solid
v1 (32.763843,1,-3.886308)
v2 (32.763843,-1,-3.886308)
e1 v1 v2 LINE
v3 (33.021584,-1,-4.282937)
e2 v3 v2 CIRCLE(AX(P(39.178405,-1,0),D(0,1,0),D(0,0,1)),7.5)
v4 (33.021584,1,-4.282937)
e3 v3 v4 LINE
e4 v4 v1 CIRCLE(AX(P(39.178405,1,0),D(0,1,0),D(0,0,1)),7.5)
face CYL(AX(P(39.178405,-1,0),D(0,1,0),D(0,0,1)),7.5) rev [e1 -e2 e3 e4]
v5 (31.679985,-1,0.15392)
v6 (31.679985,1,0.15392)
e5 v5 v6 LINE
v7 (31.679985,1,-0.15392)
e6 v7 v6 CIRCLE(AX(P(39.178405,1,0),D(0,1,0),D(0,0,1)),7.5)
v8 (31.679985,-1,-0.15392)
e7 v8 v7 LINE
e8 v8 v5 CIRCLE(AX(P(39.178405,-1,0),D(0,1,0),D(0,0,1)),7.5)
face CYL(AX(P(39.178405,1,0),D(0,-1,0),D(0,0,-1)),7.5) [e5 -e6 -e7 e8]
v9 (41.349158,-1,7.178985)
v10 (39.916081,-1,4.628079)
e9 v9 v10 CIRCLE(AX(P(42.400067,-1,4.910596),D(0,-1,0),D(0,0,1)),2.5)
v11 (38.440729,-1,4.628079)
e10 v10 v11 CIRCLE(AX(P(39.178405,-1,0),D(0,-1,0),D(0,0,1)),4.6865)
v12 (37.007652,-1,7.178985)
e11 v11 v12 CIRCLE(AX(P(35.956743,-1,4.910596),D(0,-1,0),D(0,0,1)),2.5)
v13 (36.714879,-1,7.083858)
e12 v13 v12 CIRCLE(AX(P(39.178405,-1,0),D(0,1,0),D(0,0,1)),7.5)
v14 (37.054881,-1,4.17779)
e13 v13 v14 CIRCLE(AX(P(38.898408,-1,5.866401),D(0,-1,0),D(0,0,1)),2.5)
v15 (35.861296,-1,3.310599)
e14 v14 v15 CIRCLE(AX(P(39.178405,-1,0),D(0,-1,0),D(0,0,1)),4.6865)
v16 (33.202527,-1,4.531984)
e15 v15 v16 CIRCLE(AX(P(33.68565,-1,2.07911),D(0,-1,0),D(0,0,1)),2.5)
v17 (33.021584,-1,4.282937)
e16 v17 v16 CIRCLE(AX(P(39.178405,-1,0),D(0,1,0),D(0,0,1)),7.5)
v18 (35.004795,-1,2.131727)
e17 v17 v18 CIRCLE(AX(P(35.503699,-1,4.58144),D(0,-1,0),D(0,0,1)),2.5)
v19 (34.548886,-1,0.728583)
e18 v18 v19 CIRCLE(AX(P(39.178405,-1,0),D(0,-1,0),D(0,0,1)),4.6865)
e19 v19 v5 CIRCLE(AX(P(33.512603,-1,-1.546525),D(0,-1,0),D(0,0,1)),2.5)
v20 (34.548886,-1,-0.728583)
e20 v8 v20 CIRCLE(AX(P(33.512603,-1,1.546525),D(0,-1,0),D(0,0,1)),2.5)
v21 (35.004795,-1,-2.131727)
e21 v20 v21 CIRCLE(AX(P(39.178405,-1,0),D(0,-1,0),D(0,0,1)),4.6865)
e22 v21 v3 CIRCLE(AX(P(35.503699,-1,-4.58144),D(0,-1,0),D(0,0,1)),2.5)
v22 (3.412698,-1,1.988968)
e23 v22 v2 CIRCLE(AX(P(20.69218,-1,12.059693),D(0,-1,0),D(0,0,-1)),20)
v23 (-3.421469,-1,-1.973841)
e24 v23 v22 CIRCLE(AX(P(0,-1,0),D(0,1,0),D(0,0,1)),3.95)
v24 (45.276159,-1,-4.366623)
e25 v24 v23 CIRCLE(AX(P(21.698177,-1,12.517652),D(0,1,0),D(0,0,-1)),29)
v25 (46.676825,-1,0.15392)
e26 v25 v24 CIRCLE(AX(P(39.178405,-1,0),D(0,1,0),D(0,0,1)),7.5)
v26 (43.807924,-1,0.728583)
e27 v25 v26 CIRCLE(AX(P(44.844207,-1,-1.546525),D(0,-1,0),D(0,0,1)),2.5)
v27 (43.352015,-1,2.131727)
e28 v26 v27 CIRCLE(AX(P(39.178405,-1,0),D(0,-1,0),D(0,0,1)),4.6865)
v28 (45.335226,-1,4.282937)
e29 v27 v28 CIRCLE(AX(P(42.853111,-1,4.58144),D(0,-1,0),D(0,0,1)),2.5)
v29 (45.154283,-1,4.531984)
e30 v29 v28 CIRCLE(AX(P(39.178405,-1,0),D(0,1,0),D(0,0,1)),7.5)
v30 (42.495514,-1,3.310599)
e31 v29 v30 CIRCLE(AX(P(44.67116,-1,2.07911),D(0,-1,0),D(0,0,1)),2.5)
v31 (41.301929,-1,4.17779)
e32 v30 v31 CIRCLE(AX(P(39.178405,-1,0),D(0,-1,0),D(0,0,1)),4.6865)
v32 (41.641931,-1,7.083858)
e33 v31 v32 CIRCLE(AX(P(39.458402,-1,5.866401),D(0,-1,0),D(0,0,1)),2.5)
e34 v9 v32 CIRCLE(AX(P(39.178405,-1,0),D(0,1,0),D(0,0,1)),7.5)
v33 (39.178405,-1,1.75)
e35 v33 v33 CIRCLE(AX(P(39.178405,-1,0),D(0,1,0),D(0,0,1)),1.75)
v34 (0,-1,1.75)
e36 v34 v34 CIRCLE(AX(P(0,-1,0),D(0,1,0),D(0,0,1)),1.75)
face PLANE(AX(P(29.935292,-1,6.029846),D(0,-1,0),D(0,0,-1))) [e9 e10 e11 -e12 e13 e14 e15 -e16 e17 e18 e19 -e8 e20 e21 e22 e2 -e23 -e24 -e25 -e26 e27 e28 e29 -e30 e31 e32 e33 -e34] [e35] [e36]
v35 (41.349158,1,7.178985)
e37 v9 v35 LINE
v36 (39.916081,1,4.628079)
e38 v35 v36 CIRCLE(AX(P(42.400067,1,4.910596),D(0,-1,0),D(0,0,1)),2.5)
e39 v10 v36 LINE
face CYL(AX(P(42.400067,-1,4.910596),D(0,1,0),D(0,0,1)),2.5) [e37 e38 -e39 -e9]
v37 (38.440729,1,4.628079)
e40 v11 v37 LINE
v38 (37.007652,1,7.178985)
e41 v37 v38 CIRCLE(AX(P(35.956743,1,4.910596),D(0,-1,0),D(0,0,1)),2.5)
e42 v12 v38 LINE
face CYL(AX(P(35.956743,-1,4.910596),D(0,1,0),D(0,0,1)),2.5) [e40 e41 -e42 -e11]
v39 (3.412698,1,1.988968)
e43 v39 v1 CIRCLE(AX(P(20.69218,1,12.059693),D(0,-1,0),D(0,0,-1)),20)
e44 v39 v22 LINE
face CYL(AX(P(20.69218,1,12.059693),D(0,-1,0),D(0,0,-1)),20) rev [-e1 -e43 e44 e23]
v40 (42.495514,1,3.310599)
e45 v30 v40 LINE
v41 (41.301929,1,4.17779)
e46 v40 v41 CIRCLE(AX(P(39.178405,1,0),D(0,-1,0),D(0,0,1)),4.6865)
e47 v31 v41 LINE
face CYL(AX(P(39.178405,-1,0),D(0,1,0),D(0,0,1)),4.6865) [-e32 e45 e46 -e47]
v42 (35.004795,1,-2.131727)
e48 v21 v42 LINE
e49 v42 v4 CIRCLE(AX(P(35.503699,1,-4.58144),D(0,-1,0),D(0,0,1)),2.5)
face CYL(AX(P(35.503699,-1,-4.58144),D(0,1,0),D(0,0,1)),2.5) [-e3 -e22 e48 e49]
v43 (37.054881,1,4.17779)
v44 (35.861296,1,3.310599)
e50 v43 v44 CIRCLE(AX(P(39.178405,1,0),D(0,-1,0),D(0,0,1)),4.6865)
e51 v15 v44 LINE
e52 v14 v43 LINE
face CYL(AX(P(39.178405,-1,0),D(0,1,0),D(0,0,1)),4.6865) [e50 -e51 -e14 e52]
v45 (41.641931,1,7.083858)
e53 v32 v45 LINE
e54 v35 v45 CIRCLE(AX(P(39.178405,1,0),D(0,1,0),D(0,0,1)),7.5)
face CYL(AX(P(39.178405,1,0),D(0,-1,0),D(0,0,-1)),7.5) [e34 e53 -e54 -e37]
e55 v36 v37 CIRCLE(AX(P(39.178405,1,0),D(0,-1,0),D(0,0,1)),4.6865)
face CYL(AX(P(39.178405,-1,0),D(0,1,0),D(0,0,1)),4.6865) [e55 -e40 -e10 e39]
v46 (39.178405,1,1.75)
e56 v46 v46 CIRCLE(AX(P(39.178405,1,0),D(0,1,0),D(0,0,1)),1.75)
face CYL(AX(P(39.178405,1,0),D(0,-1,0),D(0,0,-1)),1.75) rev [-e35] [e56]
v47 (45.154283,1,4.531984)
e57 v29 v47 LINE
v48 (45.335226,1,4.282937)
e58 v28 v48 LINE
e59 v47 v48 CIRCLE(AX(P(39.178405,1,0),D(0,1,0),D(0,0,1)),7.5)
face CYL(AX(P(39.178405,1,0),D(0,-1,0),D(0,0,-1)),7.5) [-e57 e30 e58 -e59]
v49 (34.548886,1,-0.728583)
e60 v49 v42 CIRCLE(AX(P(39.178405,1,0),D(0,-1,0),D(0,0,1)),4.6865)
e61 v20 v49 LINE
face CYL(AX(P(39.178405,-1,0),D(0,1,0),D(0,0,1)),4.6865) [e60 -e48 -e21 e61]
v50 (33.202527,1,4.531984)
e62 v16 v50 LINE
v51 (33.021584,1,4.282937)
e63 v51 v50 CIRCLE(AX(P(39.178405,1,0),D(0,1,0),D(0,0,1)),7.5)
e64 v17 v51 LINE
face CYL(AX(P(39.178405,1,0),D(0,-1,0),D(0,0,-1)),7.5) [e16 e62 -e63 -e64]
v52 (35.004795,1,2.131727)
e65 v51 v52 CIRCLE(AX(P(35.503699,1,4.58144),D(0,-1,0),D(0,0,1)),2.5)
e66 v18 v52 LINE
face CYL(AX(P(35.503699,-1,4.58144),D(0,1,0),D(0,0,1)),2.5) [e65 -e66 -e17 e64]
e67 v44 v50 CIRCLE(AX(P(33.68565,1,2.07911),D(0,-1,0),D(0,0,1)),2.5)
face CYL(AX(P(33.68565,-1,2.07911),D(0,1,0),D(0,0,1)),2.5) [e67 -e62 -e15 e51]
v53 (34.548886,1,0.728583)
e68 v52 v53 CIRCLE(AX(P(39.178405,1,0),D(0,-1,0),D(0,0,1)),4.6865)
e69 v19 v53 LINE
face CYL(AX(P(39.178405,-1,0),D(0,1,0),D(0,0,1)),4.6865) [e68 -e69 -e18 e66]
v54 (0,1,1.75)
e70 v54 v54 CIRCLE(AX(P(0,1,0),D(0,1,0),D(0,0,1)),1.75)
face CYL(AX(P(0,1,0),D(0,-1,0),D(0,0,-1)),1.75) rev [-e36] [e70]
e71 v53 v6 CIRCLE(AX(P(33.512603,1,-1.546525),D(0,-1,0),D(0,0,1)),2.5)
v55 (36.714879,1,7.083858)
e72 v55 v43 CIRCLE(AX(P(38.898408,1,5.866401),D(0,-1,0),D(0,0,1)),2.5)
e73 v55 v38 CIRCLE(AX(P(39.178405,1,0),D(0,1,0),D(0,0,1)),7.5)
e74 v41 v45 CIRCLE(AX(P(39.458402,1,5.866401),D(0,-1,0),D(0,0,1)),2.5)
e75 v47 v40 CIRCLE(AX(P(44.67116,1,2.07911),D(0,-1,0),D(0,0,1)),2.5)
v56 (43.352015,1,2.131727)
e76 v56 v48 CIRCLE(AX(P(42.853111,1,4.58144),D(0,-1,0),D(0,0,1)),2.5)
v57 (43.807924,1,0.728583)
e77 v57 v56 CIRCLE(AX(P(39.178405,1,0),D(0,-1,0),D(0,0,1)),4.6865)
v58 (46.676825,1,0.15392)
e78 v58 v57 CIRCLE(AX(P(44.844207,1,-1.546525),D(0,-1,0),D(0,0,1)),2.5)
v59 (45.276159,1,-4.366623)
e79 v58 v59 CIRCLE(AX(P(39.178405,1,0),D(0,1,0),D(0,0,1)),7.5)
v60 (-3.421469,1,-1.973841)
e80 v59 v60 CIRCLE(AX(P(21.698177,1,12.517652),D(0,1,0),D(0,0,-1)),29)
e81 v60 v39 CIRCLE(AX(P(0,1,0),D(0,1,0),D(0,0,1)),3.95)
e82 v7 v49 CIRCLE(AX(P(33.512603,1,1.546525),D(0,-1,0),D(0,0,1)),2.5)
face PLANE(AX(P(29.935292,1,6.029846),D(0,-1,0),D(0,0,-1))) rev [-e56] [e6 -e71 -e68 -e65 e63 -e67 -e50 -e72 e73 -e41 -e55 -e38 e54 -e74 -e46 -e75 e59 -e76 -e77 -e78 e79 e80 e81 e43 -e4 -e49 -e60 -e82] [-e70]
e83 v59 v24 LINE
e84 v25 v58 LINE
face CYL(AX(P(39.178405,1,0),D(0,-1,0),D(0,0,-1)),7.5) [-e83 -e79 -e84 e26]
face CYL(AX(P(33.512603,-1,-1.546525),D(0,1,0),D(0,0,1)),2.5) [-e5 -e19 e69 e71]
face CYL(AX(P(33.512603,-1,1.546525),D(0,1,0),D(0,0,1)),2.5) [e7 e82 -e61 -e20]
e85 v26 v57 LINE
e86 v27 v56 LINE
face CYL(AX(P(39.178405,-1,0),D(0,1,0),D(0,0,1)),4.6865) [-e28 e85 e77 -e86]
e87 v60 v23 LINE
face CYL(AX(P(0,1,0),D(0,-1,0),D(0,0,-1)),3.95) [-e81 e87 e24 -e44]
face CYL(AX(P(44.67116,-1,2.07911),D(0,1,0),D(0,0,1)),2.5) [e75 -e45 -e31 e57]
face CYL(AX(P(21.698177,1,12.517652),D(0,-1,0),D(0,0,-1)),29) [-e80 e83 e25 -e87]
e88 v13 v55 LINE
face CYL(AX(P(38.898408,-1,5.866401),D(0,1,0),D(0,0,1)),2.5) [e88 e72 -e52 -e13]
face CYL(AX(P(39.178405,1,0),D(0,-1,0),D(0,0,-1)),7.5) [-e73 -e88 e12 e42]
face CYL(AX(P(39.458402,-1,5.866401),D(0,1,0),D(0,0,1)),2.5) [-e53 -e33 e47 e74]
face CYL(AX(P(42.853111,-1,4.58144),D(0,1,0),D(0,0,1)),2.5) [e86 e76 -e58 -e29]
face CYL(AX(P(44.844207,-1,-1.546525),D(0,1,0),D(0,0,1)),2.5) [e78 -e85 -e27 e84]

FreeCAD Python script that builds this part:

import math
import FreeCAD as App
import Part
import Sketcher

doc = App.newDocument("Part")
body = doc.addObject("PartDesign::Body", "Body")

# Sketch on XZ plane
sketch1 = body.newObject("Sketcher::SketchObject", "Sketch")
sketch1.AttachmentSupport = (doc.getObject("XZ_Plane"), [""])
sketch1.MapMode = "FlatFace"
sketch1.addGeometry([
    Part.ArcOfCircle(Part.Circle(App.Vector(0, 0, 0), App.Vector(0, 0, 1), 4), math.radians(30), math.radians(210)),  # 0
    Part.ArcOfCircle(Part.Circle(App.Vector(20.7, 12.1, 0), App.Vector(0, 0, 1), 20), math.radians(-150), math.radians(-53)),  # 1
    Part.ArcOfCircle(Part.Circle(App.Vector(39.2, 0, 0), App.Vector(0, 0, 1), 7.5), math.radians(-36), math.radians(211)),  # 2
    Part.ArcOfCircle(Part.Circle(App.Vector(21.7, 12.5, 0), App.Vector(0, 0, 1), 29), math.radians(-150), math.radians(-36)),  # 3
    Part.Circle(App.Vector(0, 0, 0), App.Vector(0, 0, 1), 1.8),  # 4
    Part.Circle(App.Vector(39.2, 0, 0), App.Vector(0, 0, 1), 1.8),  # 5
], False)
sketch1.addConstraint([
    Sketcher.Constraint("Tangent", 0, 1, 1, 1),
    Sketcher.Constraint("Coincident", 1, 2, 2, 2),
    Sketcher.Constraint("Tangent", 2, 1, 3, 2),
    Sketcher.Constraint("Tangent", 3, 1, 0, 2),
    Sketcher.Constraint("Coincident", 0, 3, -1, 1),
    Sketcher.Constraint("Coincident", 4, 3, -1, 1),
    Sketcher.Constraint("Coincident", 5, 3, 2, 3),
    Sketcher.Constraint("Equal", 4, 5),
    Sketcher.Constraint("PointOnObject", 2, 3, -1),
    Sketcher.Constraint("Radius", 1, 20.0),
    Sketcher.Constraint("Radius", 3, 29.0),
    Sketcher.Constraint("Diameter", 4, 3.5),
    Sketcher.Constraint("Radius", 2, 7.5),
    Sketcher.Constraint("Radius", 0, 3.95),
    Sketcher.Constraint("DistanceY", 1, 2, 1, 3, 15.946001),
    Sketcher.Constraint("DistanceX", -1, 1, 1, 3, 20.69218),
])
pad1 = body.newObject("PartDesign::Pad", "Pad")
pad1.Profile = sketch1
pad1.Length = 2
pad1.Midplane = True

# Sketch on XZ plane
sketch2 = body.newObject("Sketcher::SketchObject", "Sketch001")
sketch2.AttachmentSupport = (doc.getObject("XZ_Plane"), [""])
sketch2.MapMode = "FlatFace"
sketch2.AttachmentOffset = App.Placement(App.Vector(0, 0, -1), App.Rotation())
sketch2.addGeometry([
    Part.ArcOfCircle(Part.Circle(App.Vector(35.5, -4.6, 0), App.Vector(0, 0, 1), 2.5), math.radians(102), math.radians(173)),  # 0
    Part.ArcOfCircle(Part.Circle(App.Vector(39.2, 0, 0), App.Vector(0, 0, 1), 7.5), math.radians(-179), math.radians(-145)),  # 1
    Part.ArcOfCircle(Part.Circle(App.Vector(33.5, 1.5, 0), App.Vector(0, 0, 1), 2.5), math.radians(-137), math.radians(-66)),  # 2
    Part.ArcOfCircle(Part.Circle(App.Vector(39.2, 0, 0), App.Vector(0, 0, 1), 4.7), math.radians(-171.06), math.radians(-152.94)),  # 3
    Part.ArcOfCircle(Part.Circle(App.Vector(33.5, -1.5, 0), App.Vector(0, 0, 1), 2.5), math.radians(66), math.radians(137)),  # 4
    Part.ArcOfCircle(Part.Circle(App.Vector(39.2, 0, 0), App.Vector(0, 0, 1), 7.5), math.radians(145), math.radians(179)),  # 5
    Part.ArcOfCircle(Part.Circle(App.Vector(35.5, 4.6, 0), App.Vector(0, 0, 1), 2.5), math.radians(-173), math.radians(-102)),  # 6
    Part.ArcOfCircle(Part.Circle(App.Vector(39.2, 0, 0), App.Vector(0, 0, 1), 4.7), math.radians(152.94), math.radians(171.06)),  # 7
    Part.ArcOfCircle(Part.Circle(App.Vector(33.7, 2.1, 0), App.Vector(0, 0, 1), 2.5), math.radians(30), math.radians(101)),  # 8
    Part.ArcOfCircle(Part.Circle(App.Vector(39.2, 0, 0), App.Vector(0, 0, 1), 7.5), math.radians(109), math.radians(143)),  # 9
    Part.ArcOfCircle(Part.Circle(App.Vector(38.9, 5.9, 0), App.Vector(0, 0, 1), 2.5), math.radians(151), math.radians(222)),  # 10
    Part.ArcOfCircle(Part.Circle(App.Vector(39.2, 0, 0), App.Vector(0, 0, 1), 4.7), math.radians(116.94), math.radians(135.06)),  # 11
    Part.ArcOfCircle(Part.Circle(App.Vector(36, 4.9, 0), App.Vector(0, 0, 1), 2.5), math.radians(-6), math.radians(65)),  # 12
    Part.ArcOfCircle(Part.Circle(App.Vector(39.2, 0, 0), App.Vector(0, 0, 1), 7.5), math.radians(73), math.radians(107)),  # 13
    Part.ArcOfCircle(Part.Circle(App.Vector(42.4, 4.9, 0), App.Vector(0, 0, 1), 2.5), math.radians(115), math.radians(186)),  # 14
    Part.ArcOfCircle(Part.Circle(App.Vector(39.2, 0, 0), App.Vector(0, 0, 1), 4.7), math.radians(80.94), math.radians(99.06)),  # 15
    Part.ArcOfCircle(Part.Circle(App.Vector(39.5, 5.9, 0), App.Vector(0, 0, 1), 2.5), math.radians(-42), math.radians(29)),  # 16
    Part.ArcOfCircle(Part.Circle(App.Vector(39.2, 0, 0), App.Vector(0, 0, 1), 7.5), math.radians(37), math.radians(71)),  # 17
    Part.ArcOfCircle(Part.Circle(App.Vector(44.7, 2.1, 0), App.Vector(0, 0, 1), 2.5), math.radians(79), math.radians(150)),  # 18
    Part.ArcOfCircle(Part.Circle(App.Vector(39.2, 0, 0), App.Vector(0, 0, 1), 4.7), math.radians(44.94), math.radians(63.06)),  # 19
    Part.ArcOfCircle(Part.Circle(App.Vector(42.9, 4.6, 0), App.Vector(0, 0, 1), 2.5), math.radians(-78), math.radians(-7)),  # 20
    Part.ArcOfCircle(Part.Circle(App.Vector(39.2, 0, 0), App.Vector(0, 0, 1), 7.5), math.radians(1), math.radians(35)),  # 21
    Part.ArcOfCircle(Part.Circle(App.Vector(44.8, -1.5, 0), App.Vector(0, 0, 1), 2.5), math.radians(43), math.radians(114)),  # 22
    Part.ArcOfCircle(Part.Circle(App.Vector(39.2, 0, 0), App.Vector(0, 0, 1), 4.7), math.radians(8.94), math.radians(27.06)),  # 23
], False)
sketch2.addConstraint([
    Sketcher.Constraint("Coincident", 0, 2, 1, 2),
    Sketcher.Constraint("Coincident", 1, 1, 2, 1),
    Sketcher.Constraint("Coincident", 2, 2, 3, 1),
    Sketcher.Constraint("Coincident", 3, 2, 0, 1),
    Sketcher.Constraint("Coincident", 4, 2, 5, 2),
    Sketcher.Constraint("Coincident", 5, 1, 6, 1),
    Sketcher.Constraint("Coincident", 6, 2, 7, 1),
    Sketcher.Constraint("Coincident", 7, 2, 4, 1),
    Sketcher.Constraint("Coincident", 8, 2, 9, 2),
    Sketcher.Constraint("Coincident", 9, 1, 10, 1),
    Sketcher.Constraint("Coincident", 10, 2, 11, 1),
    Sketcher.Constraint("Coincident", 11, 2, 8, 1),
    Sketcher.Constraint("Coincident", 12, 2, 13, 2),
    Sketcher.Constraint("Coincident", 13, 1, 14, 1),
    Sketcher.Constraint("Coincident", 14, 2, 15, 1),
    Sketcher.Constraint("Coincident", 15, 2, 12, 1),
    Sketcher.Constraint("Coincident", 16, 2, 17, 2),
    Sketcher.Constraint("Coincident", 17, 1, 18, 1),
    Sketcher.Constraint("Coincident", 18, 2, 19, 1),
    Sketcher.Constraint("Coincident", 19, 2, 16, 1),
    Sketcher.Constraint("Coincident", 20, 2, 21, 2),
    Sketcher.Constraint("Coincident", 21, 1, 22, 1),
    Sketcher.Constraint("Coincident", 22, 2, 23, 1),
    Sketcher.Constraint("Coincident", 23, 2, 20, 1),
    Sketcher.Constraint("Coincident", 3, 3, 1, 3),
    Sketcher.Constraint("Coincident", 5, 3, 1, 3),
    Sketcher.Constraint("Coincident", 7, 3, 1, 3),
    Sketcher.Constraint("Coincident", 9, 3, 1, 3),
    Sketcher.Constraint("Coincident", 11, 3, 1, 3),
    Sketcher.Constraint("Coincident", 13, 3, 1, 3),
    Sketcher.Constraint("Coincident", 15, 3, 1, 3),
    Sketcher.Constraint("Coincident", 17, 3, 1, 3),
    Sketcher.Constraint("Coincident", 19, 3, 1, 3),
    Sketcher.Constraint("Coincident", 21, 3, 1, 3),
    Sketcher.Constraint("Coincident", 23, 3, 1, 3),
    Sketcher.Constraint("Equal", 0, 2),
    Sketcher.Constraint("Equal", 2, 4),
    Sketcher.Constraint("Equal", 1, 5),
    Sketcher.Constraint("Equal", 4, 6),
    Sketcher.Constraint("Equal", 3, 7),
    Sketcher.Constraint("Equal", 6, 8),
    Sketcher.Constraint("Equal", 5, 9),
    Sketcher.Constraint("Equal", 8, 10),
    Sketcher.Constraint("Equal", 7, 11),
    Sketcher.Constraint("Equal", 10, 12),
    Sketcher.Constraint("Equal", 9, 13),
    Sketcher.Constraint("Equal", 12, 14),
    Sketcher.Constraint("Equal", 11, 15),
    Sketcher.Constraint("Equal", 14, 16),
    Sketcher.Constraint("Equal", 13, 17),
    Sketcher.Constraint("Equal", 16, 18),
    Sketcher.Constraint("Equal", 15, 19),
    Sketcher.Constraint("Equal", 18, 20),
    Sketcher.Constraint("Equal", 17, 21),
    Sketcher.Constraint("Equal", 20, 22),
    Sketcher.Constraint("Equal", 19, 23),
    Sketcher.Constraint("Symmetric", 2, 3, 4, 3, -1),
    Sketcher.Constraint("Symmetric", 0, 3, 6, 3, -1),
    Sketcher.Constraint("PointOnObject", 1, 3, -1),
    Sketcher.Constraint("Horizontal", 12, 3, 14, 3),
    Sketcher.Constraint("Horizontal", 10, 3, 16, 3),
    Sketcher.Constraint("Horizontal", 8, 3, 18, 3),
    Sketcher.Constraint("Horizontal", 6, 3, 20, 3),
    Sketcher.Constraint("Horizontal", 4, 3, 22, 3),
    Sketcher.Constraint("Horizontal", 12, 2, 13, 1),
    Sketcher.Constraint("Horizontal", 9, 1, 16, 2),
    Sketcher.Constraint("Horizontal", 8, 2, 17, 1),
    Sketcher.Constraint("Horizontal", 5, 1, 20, 2),
    Sketcher.Constraint("Horizontal", 4, 2, 21, 1),
    Sketcher.Constraint("Radius", 0, 2.5),
    Sketcher.Constraint("Radius", 1, 7.5),
    Sketcher.Constraint("Radius", 3, 4.6865),
    Sketcher.Constraint("DistanceX", 9, 1, 10, 2, 0.340001),
    Sketcher.Constraint("DistanceY", 17, 1, 13, 1, 2.647001),
    Sketcher.Constraint("DistanceX", -1, 1, 0, 3, 35.503699),
    Sketcher.Constraint("DistanceY", -1, 1, 10, 3, 5.866401),
    Sketcher.Constraint("DistanceX", -1, 1, 16, 3, 39.458402),
    Sketcher.Constraint("DistanceY", -1, 1, 11, 2, 3.310599),
    Sketcher.Constraint("DistanceX", 1, 1, 0, 2, 1.341599),
    Sketcher.Constraint("DistanceX", 1, 1, 2, 2, 2.868901),
    Sketcher.Constraint("DistanceY", 3, 2, 4, 3, 0.585202),
    Sketcher.Constraint("DistanceX", 10, 2, 14, 2, 2.8612),
    Sketcher.Constraint("DistanceX", -1, 1, 8, 3, 33.68565),
])
pocket1 = body.newObject("PartDesign::Pocket", "Pocket")
pocket1.Profile = sketch2
pocket1.Type = "ThroughAll"
pocket1.Reversed = True

doc.recompute()
